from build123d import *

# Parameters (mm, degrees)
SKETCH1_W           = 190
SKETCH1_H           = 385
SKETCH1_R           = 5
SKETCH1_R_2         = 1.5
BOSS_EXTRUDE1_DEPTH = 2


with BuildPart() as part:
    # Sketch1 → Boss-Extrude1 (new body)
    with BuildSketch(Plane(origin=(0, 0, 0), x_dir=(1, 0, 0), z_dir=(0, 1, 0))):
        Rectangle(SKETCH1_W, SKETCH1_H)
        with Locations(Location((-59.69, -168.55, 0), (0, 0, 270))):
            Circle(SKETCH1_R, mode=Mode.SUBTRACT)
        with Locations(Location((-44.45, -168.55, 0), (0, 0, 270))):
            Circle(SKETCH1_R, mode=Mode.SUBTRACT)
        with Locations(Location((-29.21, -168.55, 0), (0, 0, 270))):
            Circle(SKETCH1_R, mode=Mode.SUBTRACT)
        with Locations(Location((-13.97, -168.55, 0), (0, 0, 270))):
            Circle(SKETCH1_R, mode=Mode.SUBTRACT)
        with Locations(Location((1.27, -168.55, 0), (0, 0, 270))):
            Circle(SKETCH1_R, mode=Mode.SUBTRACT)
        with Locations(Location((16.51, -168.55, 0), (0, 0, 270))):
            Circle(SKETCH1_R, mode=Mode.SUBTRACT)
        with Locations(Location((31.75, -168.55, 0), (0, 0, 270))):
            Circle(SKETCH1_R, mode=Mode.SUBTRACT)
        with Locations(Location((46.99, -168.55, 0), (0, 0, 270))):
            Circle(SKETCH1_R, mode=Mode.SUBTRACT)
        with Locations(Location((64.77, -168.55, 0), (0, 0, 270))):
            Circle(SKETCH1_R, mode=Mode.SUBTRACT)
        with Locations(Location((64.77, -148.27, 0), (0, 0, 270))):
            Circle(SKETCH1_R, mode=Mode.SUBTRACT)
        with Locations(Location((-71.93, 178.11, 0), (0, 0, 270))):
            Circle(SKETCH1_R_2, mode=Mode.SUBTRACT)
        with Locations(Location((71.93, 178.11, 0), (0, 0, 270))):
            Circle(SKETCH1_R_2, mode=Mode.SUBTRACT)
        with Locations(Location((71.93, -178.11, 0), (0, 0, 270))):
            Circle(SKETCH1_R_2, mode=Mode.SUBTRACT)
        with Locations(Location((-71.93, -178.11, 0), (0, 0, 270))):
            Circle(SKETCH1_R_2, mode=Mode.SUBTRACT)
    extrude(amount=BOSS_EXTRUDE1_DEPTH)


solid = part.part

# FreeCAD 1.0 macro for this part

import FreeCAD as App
import Part
import Sketcher
Q = App.Units.Quantity

doc = App.newDocument("Part")
body = doc.addObject("PartDesign::Body", "Body")

# Sketch on XZ plane
sketch1 = body.newObject("Sketcher::SketchObject", "Sketch")
sketch1.AttachmentSupport = (doc.getObject("XZ_Plane"), [""])
sketch1.MapMode = "FlatFace"
sketch1.addGeometry([
    Part.LineSegment(App.Vector(-95, -192.5, 0), App.Vector(-95, 192.5, 0)),  # 0
    Part.LineSegment(App.Vector(-95, 192.5, 0), App.Vector(95, 192.5, 0)),  # 1
    Part.LineSegment(App.Vector(95, 192.5, 0), App.Vector(95, -192.5, 0)),  # 2
    Part.LineSegment(App.Vector(95, -192.5, 0), App.Vector(-95, -192.5, 0)),  # 3
    Part.Circle(App.Vector(-71.9, 178.1, 0), App.Vector(0, 0, 1), 1.5),  # 4
    Part.Circle(App.Vector(-59.7, 168.6, 0), App.Vector(0, 0, 1), 5),  # 5
    Part.Circle(App.Vector(-44.5, 168.6, 0), App.Vector(0, 0, 1), 5),  # 6
    Part.Circle(App.Vector(-29.2, 168.6, 0), App.Vector(0, 0, 1), 5),  # 7
    Part.Circle(App.Vector(-14, 168.6, 0), App.Vector(0, 0, 1), 5),  # 8
    Part.Circle(App.Vector(1.3, 168.6, 0), App.Vector(0, 0, 1), 5),  # 9
    Part.Circle(App.Vector(16.5, 168.6, 0), App.Vector(0, 0, 1), 5),  # 10
    Part.Circle(App.Vector(31.8, 168.6, 0), App.Vector(0, 0, 1), 5),  # 11
    Part.Circle(App.Vector(47, 168.6, 0), App.Vector(0, 0, 1), 5),  # 12
    Part.Circle(App.Vector(64.8, 168.6, 0), App.Vector(0, 0, 1), 5),  # 13
    Part.Circle(App.Vector(71.9, 178.1, 0), App.Vector(0, 0, 1), 1.5),  # 14
    Part.Circle(App.Vector(64.8, 148.3, 0), App.Vector(0, 0, 1), 5),  # 15
    Part.Circle(App.Vector(-71.9, -178.1, 0), App.Vector(0, 0, 1), 1.5),  # 16
    Part.Circle(App.Vector(71.9, -178.1, 0), App.Vector(0, 0, 1), 1.5),  # 17
], False)
sketch1.addConstraint([
    Sketcher.Constraint("Coincident", 0, 2, 1, 1),
    Sketcher.Constraint("Coincident", 1, 2, 2, 1),
    Sketcher.Constraint("Coincident", 2, 2, 3, 1),
    Sketcher.Constraint("Coincident", 3, 2, 0, 1),
    Sketcher.Constraint("Vertical", 0),
    Sketcher.Constraint("Horizontal", 1),
    Sketcher.Constraint("Vertical", 2),
    Sketcher.Constraint("Horizontal", 3),
    Sketcher.Constraint("Equal", 5, 6),
    Sketcher.Constraint("Equal", 6, 7),
    Sketcher.Constraint("Equal", 7, 8),
    Sketcher.Constraint("Equal", 8, 9),
    Sketcher.Constraint("Equal", 9, 10),
    Sketcher.Constraint("Equal", 10, 11),
    Sketcher.Constraint("Equal", 11, 12),
    Sketcher.Constraint("Equal", 12, 13),
    Sketcher.Constraint("Equal", 4, 14),
    Sketcher.Constraint("Equal", 13, 15),
    Sketcher.Constraint("Equal", 14, 16),
    Sketcher.Constraint("Equal", 16, 17),
    Sketcher.Constraint("Symmetric", 14, 3, 16, 3, -1, 1),
    Sketcher.Constraint("Symmetric", 4, 3, 17, 3, -1, 1),
    Sketcher.Constraint("Symmetric", 0, 2, 2, 2, -1, 1),
    Sketcher.Constraint("Symmetric", 4, 3, 14, 3, -2),
    Sketcher.Constraint("Horizontal", 5, 3, 6, 3),
    Sketcher.Constraint("Horizontal", 6, 3, 7, 3),
    Sketcher.Constraint("Horizontal", 7, 3, 8, 3),
    Sketcher.Constraint("Horizontal", 8, 3, 9, 3),
    Sketcher.Constraint("Horizontal", 9, 3, 10, 3),
    Sketcher.Constraint("Horizontal", 10, 3, 11, 3),
    Sketcher.Constraint("Horizontal", 11, 3, 12, 3),
    Sketcher.Constraint("Horizontal", 12, 3, 13, 3),
    Sketcher.Constraint("Vertical", 13, 3, 15, 3),
    Sketcher.Constraint("Diameter", 4, Q("3 mm")),
    Sketcher.Constraint("Diameter", 5, Q("10 mm")),
    Sketcher.Constraint("DistanceX", 1, 1, 1, 2, Q("190 mm")),
    Sketcher.Constraint("DistanceY", 0, 1, 0, 2, Q("385 mm")),
    Sketcher.Constraint("DistanceX", 4, 3, 9, 3, Q("73.2 mm")),
    Sketcher.Constraint("DistanceX", 5, 3, 10, 3, Q("76.2 mm")),
    Sketcher.Constraint("DistanceX", 6, 3, 11, 3, Q("76.2 mm")),
    Sketcher.Constraint("DistanceX", 7, 3, 12, 3, Q("76.2 mm")),
    Sketcher.Constraint("DistanceX", 9, 3, 13, 3, Q("63.5 mm")),
    Sketcher.Constraint("DistanceX", 4, 3, -1, 1, Q("71.93 mm")),
    Sketcher.Constraint("DistanceY", -1, 1, 4, 3, Q("178.11 mm")),
    Sketcher.Constraint("DistanceX", 5, 3, -1, 1, Q("59.69 mm")),
    Sketcher.Constraint("DistanceY", -1, 1, 5, 3, Q("168.55 mm")),
    Sketcher.Constraint("DistanceX", 6, 3, -1, 1, Q("44.45 mm")),
    Sketcher.Constraint("DistanceX", 7, 3, -1, 1, Q("29.21 mm")),
    Sketcher.Constraint("DistanceX", 8, 3, -1, 1, Q("13.97 mm")),
    Sketcher.Constraint("DistanceY", -1, 1, 15, 3, Q("148.27 mm")),
])
pad1 = body.newObject("PartDesign::Pad", "Pad")
pad1.Profile = sketch1
pad1.Length = 2
pad1.Reversed = True

doc.recompute()
